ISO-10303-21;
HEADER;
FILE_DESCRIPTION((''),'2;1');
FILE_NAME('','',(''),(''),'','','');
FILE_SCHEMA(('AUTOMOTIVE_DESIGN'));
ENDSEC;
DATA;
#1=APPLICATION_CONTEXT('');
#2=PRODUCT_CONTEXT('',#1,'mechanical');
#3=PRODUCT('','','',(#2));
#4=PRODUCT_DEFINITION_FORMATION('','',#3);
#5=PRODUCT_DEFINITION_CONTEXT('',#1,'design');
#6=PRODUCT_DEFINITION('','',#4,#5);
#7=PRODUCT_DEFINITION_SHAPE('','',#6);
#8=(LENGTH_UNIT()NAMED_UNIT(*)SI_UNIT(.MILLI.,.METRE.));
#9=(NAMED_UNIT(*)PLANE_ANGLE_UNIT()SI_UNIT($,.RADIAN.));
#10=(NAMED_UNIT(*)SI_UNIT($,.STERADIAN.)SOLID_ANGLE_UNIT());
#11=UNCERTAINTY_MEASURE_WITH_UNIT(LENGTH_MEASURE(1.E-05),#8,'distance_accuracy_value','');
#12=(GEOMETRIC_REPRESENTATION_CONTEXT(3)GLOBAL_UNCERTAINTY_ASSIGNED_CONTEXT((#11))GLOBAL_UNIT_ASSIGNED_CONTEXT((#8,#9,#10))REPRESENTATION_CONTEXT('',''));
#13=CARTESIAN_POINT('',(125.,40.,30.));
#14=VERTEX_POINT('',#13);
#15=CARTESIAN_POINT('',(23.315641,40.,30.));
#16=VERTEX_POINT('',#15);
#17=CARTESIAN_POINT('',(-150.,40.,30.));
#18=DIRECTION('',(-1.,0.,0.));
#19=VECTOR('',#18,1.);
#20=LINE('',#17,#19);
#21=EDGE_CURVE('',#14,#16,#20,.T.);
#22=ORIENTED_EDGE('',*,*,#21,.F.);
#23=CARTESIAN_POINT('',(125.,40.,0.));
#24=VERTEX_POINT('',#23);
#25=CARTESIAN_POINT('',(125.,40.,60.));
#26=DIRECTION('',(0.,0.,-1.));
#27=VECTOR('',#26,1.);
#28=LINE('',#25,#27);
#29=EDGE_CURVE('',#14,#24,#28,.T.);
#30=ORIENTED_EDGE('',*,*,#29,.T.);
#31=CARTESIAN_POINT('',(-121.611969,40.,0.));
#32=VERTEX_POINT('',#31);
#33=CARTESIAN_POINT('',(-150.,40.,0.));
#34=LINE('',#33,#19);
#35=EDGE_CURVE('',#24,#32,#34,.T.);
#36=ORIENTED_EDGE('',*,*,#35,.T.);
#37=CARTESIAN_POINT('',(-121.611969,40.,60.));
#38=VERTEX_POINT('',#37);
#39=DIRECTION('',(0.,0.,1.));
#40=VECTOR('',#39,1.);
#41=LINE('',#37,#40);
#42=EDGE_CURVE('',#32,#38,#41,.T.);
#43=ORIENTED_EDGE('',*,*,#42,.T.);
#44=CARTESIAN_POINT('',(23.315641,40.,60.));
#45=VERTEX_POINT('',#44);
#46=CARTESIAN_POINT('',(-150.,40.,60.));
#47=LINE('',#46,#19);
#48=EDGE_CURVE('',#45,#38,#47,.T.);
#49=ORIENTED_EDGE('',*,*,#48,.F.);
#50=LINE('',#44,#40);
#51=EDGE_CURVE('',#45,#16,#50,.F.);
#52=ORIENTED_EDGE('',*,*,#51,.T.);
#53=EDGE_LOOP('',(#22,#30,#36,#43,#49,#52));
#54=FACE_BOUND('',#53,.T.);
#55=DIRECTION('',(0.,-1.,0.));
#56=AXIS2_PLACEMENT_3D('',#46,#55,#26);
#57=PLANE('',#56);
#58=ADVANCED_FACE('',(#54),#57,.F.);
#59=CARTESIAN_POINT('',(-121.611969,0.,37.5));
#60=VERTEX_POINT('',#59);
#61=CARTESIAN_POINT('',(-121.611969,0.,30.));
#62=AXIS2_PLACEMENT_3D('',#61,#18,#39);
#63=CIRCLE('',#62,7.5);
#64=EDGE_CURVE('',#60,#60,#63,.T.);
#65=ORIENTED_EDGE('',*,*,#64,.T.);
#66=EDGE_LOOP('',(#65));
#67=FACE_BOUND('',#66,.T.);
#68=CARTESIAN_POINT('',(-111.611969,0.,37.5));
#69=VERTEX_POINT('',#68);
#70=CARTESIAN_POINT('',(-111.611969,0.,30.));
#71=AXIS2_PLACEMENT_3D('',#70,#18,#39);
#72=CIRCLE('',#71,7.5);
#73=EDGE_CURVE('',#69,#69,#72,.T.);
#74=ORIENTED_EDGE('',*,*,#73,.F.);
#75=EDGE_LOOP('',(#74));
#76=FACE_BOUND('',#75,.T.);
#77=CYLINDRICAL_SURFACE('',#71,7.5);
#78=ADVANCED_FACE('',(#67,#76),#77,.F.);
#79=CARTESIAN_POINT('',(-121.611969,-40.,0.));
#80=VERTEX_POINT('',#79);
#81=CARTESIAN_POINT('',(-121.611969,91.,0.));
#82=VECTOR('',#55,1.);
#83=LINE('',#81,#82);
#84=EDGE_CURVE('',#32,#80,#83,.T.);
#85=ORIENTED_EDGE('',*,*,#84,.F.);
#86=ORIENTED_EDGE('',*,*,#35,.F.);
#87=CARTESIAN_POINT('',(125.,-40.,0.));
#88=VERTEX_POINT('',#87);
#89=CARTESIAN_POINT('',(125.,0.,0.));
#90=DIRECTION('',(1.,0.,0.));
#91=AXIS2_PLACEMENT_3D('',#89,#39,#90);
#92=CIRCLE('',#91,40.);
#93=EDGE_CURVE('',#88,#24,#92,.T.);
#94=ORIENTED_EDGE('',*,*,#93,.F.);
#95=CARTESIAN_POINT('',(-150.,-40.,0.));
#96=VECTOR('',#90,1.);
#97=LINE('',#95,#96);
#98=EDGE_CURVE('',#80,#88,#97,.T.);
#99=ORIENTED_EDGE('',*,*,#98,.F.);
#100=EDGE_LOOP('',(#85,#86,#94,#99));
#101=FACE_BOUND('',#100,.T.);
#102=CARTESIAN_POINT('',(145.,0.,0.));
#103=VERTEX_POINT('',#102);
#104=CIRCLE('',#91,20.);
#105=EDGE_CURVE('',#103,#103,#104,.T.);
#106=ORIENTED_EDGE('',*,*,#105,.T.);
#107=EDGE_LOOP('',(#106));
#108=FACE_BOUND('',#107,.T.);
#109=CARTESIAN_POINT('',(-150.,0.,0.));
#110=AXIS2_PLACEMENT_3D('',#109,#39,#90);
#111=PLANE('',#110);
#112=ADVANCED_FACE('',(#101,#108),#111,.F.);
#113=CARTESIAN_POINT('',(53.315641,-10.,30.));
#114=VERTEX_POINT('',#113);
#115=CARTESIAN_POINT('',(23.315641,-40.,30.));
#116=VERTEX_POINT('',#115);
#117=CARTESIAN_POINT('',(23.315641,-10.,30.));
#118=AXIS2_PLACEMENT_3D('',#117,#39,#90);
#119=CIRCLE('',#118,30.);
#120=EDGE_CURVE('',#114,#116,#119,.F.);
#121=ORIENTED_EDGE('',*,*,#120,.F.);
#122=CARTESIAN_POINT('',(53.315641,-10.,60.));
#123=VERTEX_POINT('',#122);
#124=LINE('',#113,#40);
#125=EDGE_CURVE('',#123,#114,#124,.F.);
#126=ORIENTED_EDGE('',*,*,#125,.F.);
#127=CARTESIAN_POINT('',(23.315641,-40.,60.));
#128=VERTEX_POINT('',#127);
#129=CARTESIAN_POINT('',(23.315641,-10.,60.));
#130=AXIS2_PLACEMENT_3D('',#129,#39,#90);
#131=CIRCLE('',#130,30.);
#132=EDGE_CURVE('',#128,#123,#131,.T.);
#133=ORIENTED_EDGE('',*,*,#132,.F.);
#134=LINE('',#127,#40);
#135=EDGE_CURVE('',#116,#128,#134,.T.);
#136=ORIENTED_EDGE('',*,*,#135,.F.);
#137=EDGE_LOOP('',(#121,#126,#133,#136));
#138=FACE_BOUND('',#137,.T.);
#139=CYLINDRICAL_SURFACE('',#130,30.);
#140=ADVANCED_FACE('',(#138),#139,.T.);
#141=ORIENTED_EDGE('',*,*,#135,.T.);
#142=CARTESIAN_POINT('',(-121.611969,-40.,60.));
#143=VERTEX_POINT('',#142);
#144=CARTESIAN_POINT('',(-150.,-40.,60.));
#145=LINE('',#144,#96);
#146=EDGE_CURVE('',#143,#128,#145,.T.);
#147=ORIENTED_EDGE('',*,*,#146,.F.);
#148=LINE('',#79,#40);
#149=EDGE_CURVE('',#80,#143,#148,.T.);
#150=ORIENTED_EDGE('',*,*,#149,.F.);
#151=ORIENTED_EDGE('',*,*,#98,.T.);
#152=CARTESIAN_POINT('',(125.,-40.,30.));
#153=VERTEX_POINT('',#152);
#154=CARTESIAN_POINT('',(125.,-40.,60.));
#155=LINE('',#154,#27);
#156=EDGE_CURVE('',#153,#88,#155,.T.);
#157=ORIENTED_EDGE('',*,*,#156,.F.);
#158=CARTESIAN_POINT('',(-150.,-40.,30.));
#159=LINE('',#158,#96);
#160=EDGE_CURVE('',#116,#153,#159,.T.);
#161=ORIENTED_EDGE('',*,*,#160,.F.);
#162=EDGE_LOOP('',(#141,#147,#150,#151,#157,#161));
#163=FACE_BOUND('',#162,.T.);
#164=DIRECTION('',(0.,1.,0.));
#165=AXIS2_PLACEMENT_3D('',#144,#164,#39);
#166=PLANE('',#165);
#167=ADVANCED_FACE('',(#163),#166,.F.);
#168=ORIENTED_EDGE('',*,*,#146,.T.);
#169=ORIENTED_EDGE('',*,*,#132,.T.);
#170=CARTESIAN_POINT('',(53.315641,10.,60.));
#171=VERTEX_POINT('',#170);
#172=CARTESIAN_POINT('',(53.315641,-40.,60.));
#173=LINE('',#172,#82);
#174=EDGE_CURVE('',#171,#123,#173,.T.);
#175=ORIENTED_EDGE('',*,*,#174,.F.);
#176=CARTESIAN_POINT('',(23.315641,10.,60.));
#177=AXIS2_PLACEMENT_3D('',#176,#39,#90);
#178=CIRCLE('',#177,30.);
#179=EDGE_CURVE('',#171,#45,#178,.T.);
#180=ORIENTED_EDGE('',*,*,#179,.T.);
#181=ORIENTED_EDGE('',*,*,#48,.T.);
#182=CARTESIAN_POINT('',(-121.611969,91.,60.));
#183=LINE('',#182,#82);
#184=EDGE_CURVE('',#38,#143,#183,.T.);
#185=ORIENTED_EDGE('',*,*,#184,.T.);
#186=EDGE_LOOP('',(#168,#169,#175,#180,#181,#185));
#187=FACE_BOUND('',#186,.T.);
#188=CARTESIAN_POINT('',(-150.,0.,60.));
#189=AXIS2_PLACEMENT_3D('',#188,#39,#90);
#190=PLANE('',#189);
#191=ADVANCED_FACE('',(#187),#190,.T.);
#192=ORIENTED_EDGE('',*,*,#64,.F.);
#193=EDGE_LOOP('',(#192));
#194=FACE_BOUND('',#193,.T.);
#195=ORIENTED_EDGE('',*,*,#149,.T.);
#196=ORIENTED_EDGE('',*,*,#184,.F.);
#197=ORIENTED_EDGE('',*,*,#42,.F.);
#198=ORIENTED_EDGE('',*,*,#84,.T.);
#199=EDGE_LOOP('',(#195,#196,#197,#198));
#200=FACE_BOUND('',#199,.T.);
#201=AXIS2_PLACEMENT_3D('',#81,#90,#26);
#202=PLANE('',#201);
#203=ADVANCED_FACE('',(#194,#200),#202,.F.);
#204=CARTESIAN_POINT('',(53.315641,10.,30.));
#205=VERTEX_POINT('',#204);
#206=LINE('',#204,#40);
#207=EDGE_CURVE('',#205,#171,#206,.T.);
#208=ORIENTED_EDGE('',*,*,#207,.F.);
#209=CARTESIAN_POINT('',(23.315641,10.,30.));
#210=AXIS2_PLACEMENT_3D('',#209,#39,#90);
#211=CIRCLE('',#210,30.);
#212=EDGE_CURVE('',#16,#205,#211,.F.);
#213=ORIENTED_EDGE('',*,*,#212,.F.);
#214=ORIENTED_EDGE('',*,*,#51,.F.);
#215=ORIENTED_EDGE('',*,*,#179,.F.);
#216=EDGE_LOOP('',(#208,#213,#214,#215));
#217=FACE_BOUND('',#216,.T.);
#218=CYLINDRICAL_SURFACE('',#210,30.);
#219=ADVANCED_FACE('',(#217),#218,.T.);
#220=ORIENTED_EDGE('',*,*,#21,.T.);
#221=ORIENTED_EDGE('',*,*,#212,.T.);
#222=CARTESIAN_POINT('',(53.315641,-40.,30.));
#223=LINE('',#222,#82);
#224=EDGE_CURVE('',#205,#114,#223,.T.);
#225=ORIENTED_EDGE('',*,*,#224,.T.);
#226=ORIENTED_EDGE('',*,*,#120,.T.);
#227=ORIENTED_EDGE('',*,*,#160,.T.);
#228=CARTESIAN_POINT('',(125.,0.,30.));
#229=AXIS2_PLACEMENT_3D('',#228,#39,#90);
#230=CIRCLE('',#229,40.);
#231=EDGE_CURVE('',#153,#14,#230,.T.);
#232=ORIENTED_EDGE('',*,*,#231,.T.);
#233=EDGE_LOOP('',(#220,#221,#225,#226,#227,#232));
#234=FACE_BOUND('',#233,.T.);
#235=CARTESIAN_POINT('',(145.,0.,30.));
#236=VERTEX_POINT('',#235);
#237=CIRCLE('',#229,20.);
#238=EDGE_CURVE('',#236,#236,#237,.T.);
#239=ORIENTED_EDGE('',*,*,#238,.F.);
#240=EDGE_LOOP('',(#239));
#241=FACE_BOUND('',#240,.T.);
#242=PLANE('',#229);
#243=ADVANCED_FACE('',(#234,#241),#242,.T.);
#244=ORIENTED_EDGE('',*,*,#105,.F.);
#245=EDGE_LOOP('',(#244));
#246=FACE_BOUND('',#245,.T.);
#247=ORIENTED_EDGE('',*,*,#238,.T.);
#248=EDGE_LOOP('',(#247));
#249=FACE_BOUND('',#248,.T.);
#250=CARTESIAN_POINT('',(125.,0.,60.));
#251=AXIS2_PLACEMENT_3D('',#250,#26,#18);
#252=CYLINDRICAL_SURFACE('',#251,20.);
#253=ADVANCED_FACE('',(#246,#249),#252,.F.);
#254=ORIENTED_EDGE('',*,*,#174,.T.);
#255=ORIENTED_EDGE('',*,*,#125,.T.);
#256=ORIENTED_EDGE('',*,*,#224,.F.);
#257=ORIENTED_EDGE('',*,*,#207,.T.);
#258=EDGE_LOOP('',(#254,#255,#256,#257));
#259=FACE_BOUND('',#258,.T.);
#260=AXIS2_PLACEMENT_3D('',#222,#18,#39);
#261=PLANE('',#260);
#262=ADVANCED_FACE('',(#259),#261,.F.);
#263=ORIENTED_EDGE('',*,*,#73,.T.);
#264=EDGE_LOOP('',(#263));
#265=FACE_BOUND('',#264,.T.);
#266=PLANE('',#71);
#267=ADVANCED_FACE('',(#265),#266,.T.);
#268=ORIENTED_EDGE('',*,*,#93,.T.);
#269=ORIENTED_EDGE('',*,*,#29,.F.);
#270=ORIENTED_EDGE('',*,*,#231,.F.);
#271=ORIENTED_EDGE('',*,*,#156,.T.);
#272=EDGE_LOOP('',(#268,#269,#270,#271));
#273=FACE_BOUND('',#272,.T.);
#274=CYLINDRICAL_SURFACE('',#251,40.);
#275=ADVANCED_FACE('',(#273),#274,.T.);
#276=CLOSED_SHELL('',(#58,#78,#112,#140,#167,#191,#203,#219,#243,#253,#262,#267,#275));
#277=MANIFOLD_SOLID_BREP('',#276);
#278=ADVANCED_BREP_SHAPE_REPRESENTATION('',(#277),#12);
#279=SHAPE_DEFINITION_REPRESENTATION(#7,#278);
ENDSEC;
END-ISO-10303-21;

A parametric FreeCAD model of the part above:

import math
import FreeCAD as App
import Part
import Sketcher


def edges_at(feature, points):
    """Names of the edges that pass closest to the given points."""
    edges = feature.Shape.Edges
    near = lambda p: min(range(len(edges)), key=lambda i: edges[i].distToShape(Part.Vertex(*p))[0])
    return sorted({f"Edge{near(p) + 1}" for p in points})


def add_polygon(sketch, points):
    """Adds a closed chain of lines whose ends are joined by coincident constraints."""
    first, n = sketch.GeometryCount, len(points)
    for a, b in zip(points, points[1:] + points[:1]):
        sketch.addGeometry(Part.LineSegment(App.Vector(*a, 0), App.Vector(*b, 0)), False)
    for i in range(n):
        sketch.addConstraint(Sketcher.Constraint("Coincident", first + i, 2, first + (i + 1) % n, 1))

doc = App.newDocument("Part")
body = doc.addObject("PartDesign::Body", "Body")

# Sketch on XY plane
sketch1 = body.newObject("Sketcher::SketchObject", "Sketch")
sketch1.AttachmentSupport = (doc.getObject("XY_Plane"), [""])
sketch1.MapMode = "FlatFace"
sketch1.addGeometry([
    Part.LineSegment(App.Vector(125, 40, 0), App.Vector(-150, 40, 0)),  # 0
    Part.ArcOfCircle(Part.Circle(App.Vector(-150, 0, 0), App.Vector(0, 0, 1), 40), math.radians(90), math.radians(270)),  # 1
    Part.LineSegment(App.Vector(-150, -40, 0), App.Vector(125, -40, 0)),  # 2
    Part.ArcOfCircle(Part.Circle(App.Vector(125, 0, 0), App.Vector(0, 0, 1), 40), math.radians(-90), math.radians(90)),  # 3
    Part.Circle(App.Vector(125, 0, 0), App.Vector(0, 0, 1), 20),  # 4
    Part.Circle(App.Vector(-150, 0, 0), App.Vector(0, 0, 1), 20),  # 5
], False)
sketch1.addConstraint([
    Sketcher.Constraint("Tangent", 0, 2, 1, 1),
    Sketcher.Constraint("Tangent", 1, 2, 2, 1),
    Sketcher.Constraint("Tangent", 2, 2, 3, 1),
    Sketcher.Constraint("Tangent", 3, 2, 0, 1),
    Sketcher.Constraint("Horizontal", 0),
    Sketcher.Constraint("Horizontal", 2),
    Sketcher.Constraint("Coincident", 4, 3, 3, 3),
    Sketcher.Constraint("Coincident", 5, 3, 1, 3),
    Sketcher.Constraint("Equal", 4, 5),
    Sketcher.Constraint("PointOnObject", 1, 3, -1),
    Sketcher.Constraint("Diameter", 4, 40.0),
    Sketcher.Constraint("Radius", 1, 40.0),
    Sketcher.Constraint("DistanceX", 0, 2, 0, 1, 275.0),
    Sketcher.Constraint("DistanceX", 1, 3, -1, 1, 150.0),
])
pad1 = body.newObject("PartDesign::Pad", "Pad")
pad1.Profile = sketch1
pad1.Length = 60

# Sketch on XY plane
sketch2 = body.newObject("Sketcher::SketchObject", "Sketch001")
sketch2.AttachmentSupport = (doc.getObject("XY_Plane"), [""])
sketch2.MapMode = "FlatFace"
sketch2.AttachmentOffset = App.Placement(App.Vector(0, 0, 60), App.Rotation())
sketch2.addGeometry(Part.Circle(App.Vector(125, 0, 0), App.Vector(0, 0, 1), 45), False)
sketch2.addConstraint([
    Sketcher.Constraint("PointOnObject", 0, 3, -1),
    Sketcher.Constraint("Diameter", 0, 90.0),
    Sketcher.Constraint("DistanceX", -1, 1, 0, 3, 125.0),
])
pocket1 = body.newObject("PartDesign::Pocket", "Pocket")
pocket1.Profile = sketch2
pocket1.Length = 30

# Sketch on XZ plane
sketch3 = body.newObject("Sketcher::SketchObject", "Sketch002")
sketch3.AttachmentSupport = (doc.getObject("XZ_Plane"), [""])
sketch3.MapMode = "FlatFace"
sketch3.AttachmentOffset = App.Placement(App.Vector(0, 0, 40), App.Rotation())
add_polygon(sketch3, [(-210, 60), (-210, 0), (-122, 0), (-122, 60)])  # lines 0-3
sketch3.addConstraint([
    Sketcher.Constraint("Vertical", 0),
    Sketcher.Constraint("Horizontal", 1),
    Sketcher.Constraint("Vertical", 2),
    Sketcher.Constraint("Horizontal", 3),
    Sketcher.Constraint("PointOnObject", 0, 2, -1),
    Sketcher.Constraint("DistanceY", 0, 2, 0, 1, 60.0),
    Sketcher.Constraint("DistanceX", 1, 1, 1, 2, 88.560906),
    Sketcher.Constraint("DistanceX", 1, 2, -1, 1, 121.611969),
])
pocket2 = body.newObject("PartDesign::Pocket", "Pocket001")
pocket2.Profile = sketch3
pocket2.Length = 131

# Sketch on YZ plane
sketch4 = body.newObject("Sketcher::SketchObject", "Sketch003")
sketch4.AttachmentSupport = (doc.getObject("YZ_Plane"), [""])
sketch4.MapMode = "FlatFace"
sketch4.AttachmentOffset = App.Placement(App.Vector(0, 0, -121.611969), App.Rotation())
sketch4.addGeometry(Part.Circle(App.Vector(0, 30, 0), App.Vector(0, 0, 1), 8), False)
sketch4.addConstraint([
    Sketcher.Constraint("PointOnObject", 0, 3, -2),
    Sketcher.Constraint("Diameter", 0, 15.0),
    Sketcher.Constraint("DistanceY", -1, 1, 0, 3, 30.0),
])
pocket3 = body.newObject("PartDesign::Pocket", "Pocket002")
pocket3.Profile = sketch4
pocket3.Length = 10
pocket3.Reversed = True

# Sketch on XY plane
sketch5 = body.newObject("Sketcher::SketchObject", "Sketch004")
sketch5.AttachmentSupport = (doc.getObject("XY_Plane"), [""])
sketch5.MapMode = "FlatFace"
sketch5.AttachmentOffset = App.Placement(App.Vector(0, 0, 60), App.Rotation())
add_polygon(sketch5, [(53, 40), (53, -40), (107, -40), (107, 40)])  # lines 0-3
sketch5.addConstraint([
    Sketcher.Constraint("Vertical", 0),
    Sketcher.Constraint("Horizontal", 1),
    Sketcher.Constraint("Vertical", 2),
    Sketcher.Constraint("Horizontal", 3),
    Sketcher.Constraint("DistanceY", 0, 2, 0, 1, 80.0),
    Sketcher.Constraint("DistanceY", 0, 2, -1, 1, 40.0),
    Sketcher.Constraint("DistanceX", 1, 1, 1, 2, 53.741917),
    Sketcher.Constraint("DistanceX", -1, 1, 0, 2, 53.315641),
])
pocket4 = body.newObject("PartDesign::Pocket", "Pocket003")
pocket4.Profile = sketch5
pocket4.Length = 30
doc.recompute()

fillet = body.newObject("PartDesign::Fillet", "Fillet")
fillet.Base = (pocket4, edges_at(pocket4, [(53.316, 40, 45), (53.316, -40, 45)]))
fillet.Radius = 30

doc.recompute()
